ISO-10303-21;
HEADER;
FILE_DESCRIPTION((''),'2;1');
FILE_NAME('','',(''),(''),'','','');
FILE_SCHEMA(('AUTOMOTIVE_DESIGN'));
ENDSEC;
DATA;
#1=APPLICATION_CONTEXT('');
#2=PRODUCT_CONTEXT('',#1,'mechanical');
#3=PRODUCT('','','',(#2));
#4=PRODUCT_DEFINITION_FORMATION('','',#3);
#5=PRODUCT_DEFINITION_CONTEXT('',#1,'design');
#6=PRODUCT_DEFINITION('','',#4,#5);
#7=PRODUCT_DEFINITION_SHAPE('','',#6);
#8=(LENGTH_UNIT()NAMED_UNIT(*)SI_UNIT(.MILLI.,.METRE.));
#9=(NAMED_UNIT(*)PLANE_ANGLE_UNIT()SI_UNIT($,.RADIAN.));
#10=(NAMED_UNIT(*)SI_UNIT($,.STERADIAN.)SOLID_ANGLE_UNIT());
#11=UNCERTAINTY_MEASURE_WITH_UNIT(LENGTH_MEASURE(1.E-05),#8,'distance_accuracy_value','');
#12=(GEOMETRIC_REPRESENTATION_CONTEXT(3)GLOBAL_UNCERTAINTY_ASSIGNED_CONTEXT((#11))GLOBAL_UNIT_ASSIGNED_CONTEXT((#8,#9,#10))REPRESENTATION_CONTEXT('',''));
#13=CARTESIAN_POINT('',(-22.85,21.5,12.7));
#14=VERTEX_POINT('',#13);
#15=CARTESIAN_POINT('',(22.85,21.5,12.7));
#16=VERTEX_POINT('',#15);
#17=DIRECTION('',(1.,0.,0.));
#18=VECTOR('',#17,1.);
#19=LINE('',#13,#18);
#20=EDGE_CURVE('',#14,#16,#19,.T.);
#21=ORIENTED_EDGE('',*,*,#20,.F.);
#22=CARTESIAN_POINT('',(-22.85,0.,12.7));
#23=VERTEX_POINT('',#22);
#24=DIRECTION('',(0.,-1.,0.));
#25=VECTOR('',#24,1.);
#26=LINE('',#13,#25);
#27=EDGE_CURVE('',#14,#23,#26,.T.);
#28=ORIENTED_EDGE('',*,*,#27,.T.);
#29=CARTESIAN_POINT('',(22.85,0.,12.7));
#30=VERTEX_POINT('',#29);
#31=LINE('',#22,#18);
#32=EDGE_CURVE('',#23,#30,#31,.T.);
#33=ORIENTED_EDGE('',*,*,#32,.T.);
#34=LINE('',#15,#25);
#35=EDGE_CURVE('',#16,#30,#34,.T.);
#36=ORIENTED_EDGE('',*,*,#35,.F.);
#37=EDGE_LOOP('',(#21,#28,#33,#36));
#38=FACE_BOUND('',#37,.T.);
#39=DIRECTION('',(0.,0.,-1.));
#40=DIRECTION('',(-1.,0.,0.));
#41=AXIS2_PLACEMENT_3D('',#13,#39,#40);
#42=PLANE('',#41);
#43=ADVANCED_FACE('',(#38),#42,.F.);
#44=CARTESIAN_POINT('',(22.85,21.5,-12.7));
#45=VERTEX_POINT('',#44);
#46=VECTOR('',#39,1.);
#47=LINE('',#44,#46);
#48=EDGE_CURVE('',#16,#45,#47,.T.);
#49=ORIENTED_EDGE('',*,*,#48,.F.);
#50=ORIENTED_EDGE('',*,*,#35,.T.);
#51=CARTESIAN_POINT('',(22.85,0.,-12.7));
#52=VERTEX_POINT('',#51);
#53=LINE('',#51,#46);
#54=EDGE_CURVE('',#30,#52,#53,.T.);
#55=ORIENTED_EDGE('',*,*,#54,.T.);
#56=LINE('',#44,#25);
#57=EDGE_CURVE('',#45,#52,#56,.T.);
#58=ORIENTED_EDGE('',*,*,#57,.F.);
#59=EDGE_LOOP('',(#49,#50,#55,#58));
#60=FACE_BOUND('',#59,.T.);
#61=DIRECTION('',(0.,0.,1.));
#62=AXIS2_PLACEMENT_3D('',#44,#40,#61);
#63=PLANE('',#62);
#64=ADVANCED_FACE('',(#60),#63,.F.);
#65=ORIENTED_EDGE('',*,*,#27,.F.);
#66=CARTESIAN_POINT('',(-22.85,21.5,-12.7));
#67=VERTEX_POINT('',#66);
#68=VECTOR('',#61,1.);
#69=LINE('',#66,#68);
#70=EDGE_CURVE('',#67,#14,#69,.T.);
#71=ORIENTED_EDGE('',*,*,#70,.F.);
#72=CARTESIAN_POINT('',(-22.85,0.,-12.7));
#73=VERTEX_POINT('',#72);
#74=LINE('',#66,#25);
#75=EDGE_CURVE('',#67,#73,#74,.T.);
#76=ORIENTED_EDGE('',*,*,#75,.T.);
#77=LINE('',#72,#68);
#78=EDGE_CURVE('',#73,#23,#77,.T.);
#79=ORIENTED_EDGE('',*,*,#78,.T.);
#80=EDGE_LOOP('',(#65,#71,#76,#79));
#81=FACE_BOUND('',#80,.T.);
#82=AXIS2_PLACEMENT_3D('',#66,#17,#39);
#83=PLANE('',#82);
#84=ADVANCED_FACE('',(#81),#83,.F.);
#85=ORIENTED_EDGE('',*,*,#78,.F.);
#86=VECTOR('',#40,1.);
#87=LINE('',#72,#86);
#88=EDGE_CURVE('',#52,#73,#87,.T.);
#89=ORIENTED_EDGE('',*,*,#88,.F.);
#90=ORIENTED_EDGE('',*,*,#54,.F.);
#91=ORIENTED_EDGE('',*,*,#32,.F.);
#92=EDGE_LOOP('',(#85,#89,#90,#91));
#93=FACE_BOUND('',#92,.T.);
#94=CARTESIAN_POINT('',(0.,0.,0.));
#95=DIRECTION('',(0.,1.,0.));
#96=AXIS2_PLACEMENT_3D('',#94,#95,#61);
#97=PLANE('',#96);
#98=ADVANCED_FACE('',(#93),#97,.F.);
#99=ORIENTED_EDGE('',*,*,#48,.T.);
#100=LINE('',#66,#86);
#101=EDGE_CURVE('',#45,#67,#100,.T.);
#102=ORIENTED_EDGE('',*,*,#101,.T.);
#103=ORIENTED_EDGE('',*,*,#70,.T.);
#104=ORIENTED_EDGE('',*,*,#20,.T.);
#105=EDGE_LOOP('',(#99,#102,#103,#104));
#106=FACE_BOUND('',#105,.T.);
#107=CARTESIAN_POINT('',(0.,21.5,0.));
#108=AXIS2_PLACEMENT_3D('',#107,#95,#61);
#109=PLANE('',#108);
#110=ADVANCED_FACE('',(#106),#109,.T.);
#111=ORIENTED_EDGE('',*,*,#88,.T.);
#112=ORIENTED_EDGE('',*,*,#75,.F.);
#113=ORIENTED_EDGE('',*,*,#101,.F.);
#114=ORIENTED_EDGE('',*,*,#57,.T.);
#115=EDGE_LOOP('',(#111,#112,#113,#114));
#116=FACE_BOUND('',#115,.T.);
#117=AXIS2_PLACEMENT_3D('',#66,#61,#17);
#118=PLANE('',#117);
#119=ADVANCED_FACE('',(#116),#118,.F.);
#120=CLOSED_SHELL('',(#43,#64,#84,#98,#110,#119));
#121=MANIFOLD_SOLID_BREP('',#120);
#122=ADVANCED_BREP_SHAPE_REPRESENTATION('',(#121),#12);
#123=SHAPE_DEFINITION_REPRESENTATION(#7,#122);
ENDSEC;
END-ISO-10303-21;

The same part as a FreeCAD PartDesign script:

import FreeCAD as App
import Part
import Sketcher

doc = App.newDocument("Part")
body = doc.addObject("PartDesign::Body", "Body")

# Sketch on XZ plane
sketch1 = body.newObject("Sketcher::SketchObject", "Sketch")
sketch1.AttachmentSupport = (doc.getObject("XZ_Plane"), [""])
sketch1.MapMode = "FlatFace"
sketch1.addGeometry([
    Part.LineSegment(App.Vector(-22.85, -12.7, 0), App.Vector(-22.85, 12.7, 0)),
    Part.LineSegment(App.Vector(-22.85, 12.7, 0), App.Vector(22.85, 12.7, 0)),
    Part.LineSegment(App.Vector(22.85, 12.7, 0), App.Vector(22.85, -12.7, 0)),
    Part.LineSegment(App.Vector(22.85, -12.7, 0), App.Vector(-22.85, -12.7, 0)),
], False)
sketch1.addConstraint([
    Sketcher.Constraint("Coincident", 0, 2, 1, 1),
    Sketcher.Constraint("Coincident", 1, 2, 2, 1),
    Sketcher.Constraint("Coincident", 2, 2, 3, 1),
    Sketcher.Constraint("Coincident", 3, 2, 0, 1),
    Sketcher.Constraint("Vertical", 0),
    Sketcher.Constraint("Horizontal", 1),
    Sketcher.Constraint("Vertical", 2),
    Sketcher.Constraint("Horizontal", 3),
    Sketcher.Constraint("Symmetric", 0, 2, 2, 2, -1, 1),
    Sketcher.Constraint("DistanceX", 1, 1, 1, 2, 45.7),
    Sketcher.Constraint("DistanceY", 0, 1, 0, 2, 25.4),
])
pad1 = body.newObject("PartDesign::Pad", "Pad")
pad1.Profile = sketch1
pad1.Length = 21.5
pad1.Reversed = True

doc.recompute()
